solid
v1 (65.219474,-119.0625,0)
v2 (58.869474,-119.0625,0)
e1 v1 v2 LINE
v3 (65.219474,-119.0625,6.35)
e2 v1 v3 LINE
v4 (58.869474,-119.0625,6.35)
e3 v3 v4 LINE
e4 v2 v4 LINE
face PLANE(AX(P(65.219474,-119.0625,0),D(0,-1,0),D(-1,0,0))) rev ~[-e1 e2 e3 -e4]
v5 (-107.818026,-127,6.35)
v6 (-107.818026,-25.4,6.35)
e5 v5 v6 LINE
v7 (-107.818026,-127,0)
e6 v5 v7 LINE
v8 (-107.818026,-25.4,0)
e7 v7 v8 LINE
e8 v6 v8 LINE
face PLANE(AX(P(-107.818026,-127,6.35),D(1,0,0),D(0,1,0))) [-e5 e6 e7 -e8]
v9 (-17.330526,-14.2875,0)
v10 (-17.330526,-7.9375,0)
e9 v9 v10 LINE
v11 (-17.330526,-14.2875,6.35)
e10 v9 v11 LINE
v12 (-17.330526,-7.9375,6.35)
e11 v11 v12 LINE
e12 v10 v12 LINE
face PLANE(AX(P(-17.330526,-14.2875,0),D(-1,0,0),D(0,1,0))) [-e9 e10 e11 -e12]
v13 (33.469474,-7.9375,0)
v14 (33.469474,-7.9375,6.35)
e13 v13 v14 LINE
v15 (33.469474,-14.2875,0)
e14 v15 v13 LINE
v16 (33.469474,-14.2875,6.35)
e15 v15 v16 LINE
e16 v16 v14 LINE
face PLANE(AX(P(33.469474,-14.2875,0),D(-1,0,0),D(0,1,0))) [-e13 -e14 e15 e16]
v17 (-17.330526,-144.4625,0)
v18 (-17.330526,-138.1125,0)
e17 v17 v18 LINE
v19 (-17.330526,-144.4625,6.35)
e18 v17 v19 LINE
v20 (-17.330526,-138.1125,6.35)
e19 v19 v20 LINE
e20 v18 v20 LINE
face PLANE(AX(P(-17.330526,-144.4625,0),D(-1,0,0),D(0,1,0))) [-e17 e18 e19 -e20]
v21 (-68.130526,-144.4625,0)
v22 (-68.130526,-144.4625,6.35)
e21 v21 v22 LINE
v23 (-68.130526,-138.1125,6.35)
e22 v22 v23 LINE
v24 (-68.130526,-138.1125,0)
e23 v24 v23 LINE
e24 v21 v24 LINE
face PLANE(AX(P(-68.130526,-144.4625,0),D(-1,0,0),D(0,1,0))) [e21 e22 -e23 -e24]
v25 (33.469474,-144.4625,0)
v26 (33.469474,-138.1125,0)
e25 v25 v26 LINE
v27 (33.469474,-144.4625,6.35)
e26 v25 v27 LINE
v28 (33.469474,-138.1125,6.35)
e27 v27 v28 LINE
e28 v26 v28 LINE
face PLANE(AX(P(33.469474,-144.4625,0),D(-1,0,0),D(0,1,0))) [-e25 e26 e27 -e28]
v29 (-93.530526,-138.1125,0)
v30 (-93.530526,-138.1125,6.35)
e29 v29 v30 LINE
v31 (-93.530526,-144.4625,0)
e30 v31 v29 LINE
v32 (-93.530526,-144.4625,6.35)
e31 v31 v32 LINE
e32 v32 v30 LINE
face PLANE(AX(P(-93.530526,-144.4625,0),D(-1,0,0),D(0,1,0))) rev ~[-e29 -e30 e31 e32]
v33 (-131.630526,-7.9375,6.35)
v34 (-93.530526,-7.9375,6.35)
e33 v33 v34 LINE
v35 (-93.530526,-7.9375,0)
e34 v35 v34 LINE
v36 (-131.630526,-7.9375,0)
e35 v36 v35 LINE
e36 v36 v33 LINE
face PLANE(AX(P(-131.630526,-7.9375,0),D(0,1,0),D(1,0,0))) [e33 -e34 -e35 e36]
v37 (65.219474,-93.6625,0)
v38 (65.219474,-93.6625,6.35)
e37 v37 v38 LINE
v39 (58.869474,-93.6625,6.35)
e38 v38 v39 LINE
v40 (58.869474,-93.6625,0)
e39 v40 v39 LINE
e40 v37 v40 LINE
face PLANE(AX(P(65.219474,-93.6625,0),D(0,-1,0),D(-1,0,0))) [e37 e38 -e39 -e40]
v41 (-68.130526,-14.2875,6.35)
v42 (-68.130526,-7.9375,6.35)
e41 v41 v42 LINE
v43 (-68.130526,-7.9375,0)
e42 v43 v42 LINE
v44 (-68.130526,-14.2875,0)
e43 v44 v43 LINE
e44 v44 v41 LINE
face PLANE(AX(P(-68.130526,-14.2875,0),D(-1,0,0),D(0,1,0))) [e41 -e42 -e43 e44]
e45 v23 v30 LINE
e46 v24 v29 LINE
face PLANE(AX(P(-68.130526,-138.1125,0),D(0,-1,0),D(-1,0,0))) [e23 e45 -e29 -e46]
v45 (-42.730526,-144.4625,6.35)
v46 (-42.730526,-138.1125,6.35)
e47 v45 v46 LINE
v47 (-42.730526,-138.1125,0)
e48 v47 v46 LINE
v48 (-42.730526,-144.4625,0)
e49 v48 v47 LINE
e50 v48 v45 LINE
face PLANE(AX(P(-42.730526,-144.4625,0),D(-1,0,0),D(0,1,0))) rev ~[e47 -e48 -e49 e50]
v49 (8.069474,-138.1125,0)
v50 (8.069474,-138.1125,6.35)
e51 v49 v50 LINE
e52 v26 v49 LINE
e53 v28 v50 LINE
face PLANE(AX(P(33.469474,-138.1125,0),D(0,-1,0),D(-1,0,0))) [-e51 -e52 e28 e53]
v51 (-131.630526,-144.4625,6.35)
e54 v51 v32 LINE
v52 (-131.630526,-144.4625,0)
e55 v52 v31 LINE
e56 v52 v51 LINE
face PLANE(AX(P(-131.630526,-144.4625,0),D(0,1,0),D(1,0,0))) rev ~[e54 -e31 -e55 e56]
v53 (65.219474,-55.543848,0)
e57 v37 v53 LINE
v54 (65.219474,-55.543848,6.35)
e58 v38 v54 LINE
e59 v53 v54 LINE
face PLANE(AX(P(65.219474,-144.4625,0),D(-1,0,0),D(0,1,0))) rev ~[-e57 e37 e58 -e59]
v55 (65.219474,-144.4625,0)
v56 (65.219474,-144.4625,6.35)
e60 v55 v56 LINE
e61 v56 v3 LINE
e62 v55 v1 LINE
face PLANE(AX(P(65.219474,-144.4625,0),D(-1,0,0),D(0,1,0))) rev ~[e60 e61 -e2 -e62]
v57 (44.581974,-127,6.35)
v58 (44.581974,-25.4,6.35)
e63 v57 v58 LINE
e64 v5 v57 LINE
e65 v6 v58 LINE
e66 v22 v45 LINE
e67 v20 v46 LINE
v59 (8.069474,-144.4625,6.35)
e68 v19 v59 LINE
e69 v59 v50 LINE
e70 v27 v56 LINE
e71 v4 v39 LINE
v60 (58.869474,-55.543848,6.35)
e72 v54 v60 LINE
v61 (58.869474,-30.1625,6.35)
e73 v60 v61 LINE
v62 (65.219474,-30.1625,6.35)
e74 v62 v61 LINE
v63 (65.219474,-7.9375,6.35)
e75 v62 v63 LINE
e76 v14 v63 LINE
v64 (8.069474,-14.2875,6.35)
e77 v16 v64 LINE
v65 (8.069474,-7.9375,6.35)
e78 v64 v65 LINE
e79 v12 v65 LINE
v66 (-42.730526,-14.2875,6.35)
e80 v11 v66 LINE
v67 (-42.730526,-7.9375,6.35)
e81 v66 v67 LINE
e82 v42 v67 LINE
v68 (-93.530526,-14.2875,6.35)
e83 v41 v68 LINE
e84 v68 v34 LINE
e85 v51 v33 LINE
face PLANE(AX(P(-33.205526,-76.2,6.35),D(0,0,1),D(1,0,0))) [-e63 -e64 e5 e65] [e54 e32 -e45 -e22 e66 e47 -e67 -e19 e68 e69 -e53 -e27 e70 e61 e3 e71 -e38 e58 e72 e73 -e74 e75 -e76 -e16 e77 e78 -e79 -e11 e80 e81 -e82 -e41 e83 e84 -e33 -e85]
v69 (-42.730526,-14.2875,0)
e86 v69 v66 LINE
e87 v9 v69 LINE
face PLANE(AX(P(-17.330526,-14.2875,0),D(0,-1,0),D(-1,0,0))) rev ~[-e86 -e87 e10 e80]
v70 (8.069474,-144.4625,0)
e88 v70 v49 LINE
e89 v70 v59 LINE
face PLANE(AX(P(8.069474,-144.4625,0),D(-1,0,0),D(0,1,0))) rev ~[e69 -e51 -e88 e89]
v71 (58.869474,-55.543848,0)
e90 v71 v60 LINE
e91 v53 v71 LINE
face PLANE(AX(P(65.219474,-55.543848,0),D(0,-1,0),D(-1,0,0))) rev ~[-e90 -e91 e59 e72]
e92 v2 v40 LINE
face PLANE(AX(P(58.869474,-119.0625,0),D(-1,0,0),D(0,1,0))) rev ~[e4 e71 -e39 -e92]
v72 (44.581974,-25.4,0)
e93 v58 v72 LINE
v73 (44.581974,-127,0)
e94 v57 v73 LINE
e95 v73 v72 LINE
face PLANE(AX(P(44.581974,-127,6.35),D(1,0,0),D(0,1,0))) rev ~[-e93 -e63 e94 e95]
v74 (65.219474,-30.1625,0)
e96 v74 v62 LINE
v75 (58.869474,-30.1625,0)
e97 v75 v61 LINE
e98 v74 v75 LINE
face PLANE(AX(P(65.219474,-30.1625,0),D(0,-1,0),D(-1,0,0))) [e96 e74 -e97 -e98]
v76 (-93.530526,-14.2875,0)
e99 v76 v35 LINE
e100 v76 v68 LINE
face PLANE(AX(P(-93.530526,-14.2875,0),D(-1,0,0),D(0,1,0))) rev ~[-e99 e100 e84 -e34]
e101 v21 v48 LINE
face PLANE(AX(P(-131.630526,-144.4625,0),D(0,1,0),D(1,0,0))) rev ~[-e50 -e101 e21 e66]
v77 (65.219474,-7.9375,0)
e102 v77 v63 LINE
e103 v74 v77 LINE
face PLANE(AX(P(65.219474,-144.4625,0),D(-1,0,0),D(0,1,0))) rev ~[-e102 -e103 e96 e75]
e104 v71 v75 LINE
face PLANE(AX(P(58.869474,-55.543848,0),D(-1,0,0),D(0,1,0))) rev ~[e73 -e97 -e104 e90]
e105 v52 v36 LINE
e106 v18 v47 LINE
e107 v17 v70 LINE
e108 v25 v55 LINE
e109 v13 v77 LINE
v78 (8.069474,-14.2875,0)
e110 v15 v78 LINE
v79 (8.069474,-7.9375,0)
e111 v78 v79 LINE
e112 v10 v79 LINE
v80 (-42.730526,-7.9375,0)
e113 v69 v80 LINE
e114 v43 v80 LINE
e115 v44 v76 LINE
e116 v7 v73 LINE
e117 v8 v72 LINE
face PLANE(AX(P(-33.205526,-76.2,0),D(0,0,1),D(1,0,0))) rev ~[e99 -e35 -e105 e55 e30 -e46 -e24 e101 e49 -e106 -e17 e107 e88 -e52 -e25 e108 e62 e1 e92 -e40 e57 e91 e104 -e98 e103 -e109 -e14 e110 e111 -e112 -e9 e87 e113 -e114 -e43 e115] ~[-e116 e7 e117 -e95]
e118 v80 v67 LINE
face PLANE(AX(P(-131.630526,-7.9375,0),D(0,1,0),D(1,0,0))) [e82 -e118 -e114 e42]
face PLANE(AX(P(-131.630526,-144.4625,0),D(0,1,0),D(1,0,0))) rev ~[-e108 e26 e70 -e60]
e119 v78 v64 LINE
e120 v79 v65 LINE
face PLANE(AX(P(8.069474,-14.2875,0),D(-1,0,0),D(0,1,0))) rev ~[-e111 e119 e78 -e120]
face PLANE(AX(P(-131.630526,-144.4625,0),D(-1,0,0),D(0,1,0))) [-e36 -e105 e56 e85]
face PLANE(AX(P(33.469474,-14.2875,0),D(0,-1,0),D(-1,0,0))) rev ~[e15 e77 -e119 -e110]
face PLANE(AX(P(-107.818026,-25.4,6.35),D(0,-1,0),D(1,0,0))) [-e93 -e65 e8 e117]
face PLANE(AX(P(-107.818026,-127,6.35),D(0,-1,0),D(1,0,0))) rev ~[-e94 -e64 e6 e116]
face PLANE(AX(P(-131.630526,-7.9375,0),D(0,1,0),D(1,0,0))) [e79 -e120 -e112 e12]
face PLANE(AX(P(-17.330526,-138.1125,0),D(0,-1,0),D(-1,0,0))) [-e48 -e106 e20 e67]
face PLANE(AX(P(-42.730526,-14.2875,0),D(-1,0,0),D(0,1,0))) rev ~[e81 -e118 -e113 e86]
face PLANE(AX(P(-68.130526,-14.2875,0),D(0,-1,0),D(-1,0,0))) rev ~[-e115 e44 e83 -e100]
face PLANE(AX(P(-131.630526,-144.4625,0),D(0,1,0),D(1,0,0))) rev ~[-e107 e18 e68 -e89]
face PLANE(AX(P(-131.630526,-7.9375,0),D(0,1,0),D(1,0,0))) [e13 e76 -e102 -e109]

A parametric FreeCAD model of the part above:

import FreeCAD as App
import Part
import Sketcher

V = App.Vector
Q = App.Units.Quantity


def add_polygon(sketch, points):
    """Adds a closed chain of lines whose ends are joined by coincident constraints."""
    first, n = sketch.GeometryCount, len(points)
    for a, b in zip(points, points[1:] + points[:1]):
        sketch.addGeometry(Part.LineSegment(App.Vector(*a, 0), App.Vector(*b, 0)), False)
    for i in range(n):
        sketch.addConstraint(Sketcher.Constraint("Coincident", first + i, 2, first + (i + 1) % n, 1))

doc = App.newDocument("Part")
body = doc.addObject("PartDesign::Body", "Body")

# Sketch on XY plane
sketch1 = body.newObject("Sketcher::SketchObject", "Sketch")
sketch1.AttachmentSupport = (doc.getObject("XY_Plane"), [""])
sketch1.MapMode = "FlatFace"
add_polygon(sketch1, [(-132, -8), (-132, -144), (65, -144), (65, -8)])  # lines 0-3
sketch1.addConstraint([
    Sketcher.Constraint("Vertical", 0),
    Sketcher.Constraint("Horizontal", 1),
    Sketcher.Constraint("Vertical", 2),
    Sketcher.Constraint("Horizontal", 3),
    Sketcher.Constraint("DistanceX", 1, 1, 1, 2, Q("7.75 in")),
    Sketcher.Constraint("DistanceY", 0, 2, 0, 1, Q("5.375 in")),
    Sketcher.Constraint("DistanceY", 0, 2, -1, 1, Q("5.6875 in")),
    Sketcher.Constraint("DistanceX", 0, 2, -1, 1, 131.630526),
])
pad1 = body.newObject("PartDesign::Pad", "Pad")
pad1.Profile = sketch1
pad1.Length = Q("0.25 in")

# Sketch on XY plane
sketch2 = body.newObject("Sketcher::SketchObject", "Sketch001")
sketch2.AttachmentSupport = (doc.getObject("XY_Plane"), [""])
sketch2.MapMode = "FlatFace"
sketch2.AttachmentOffset = App.Placement(V(0, 0, 0.25 * 25.4), App.Rotation())
add_polygon(sketch2, [(-108, -25), (-108, -127), (45, -127), (45, -25)])  # lines 0-3
sketch2.addConstraint([
    Sketcher.Constraint("Vertical", 0),
    Sketcher.Constraint("Horizontal", 1),
    Sketcher.Constraint("Vertical", 2),
    Sketcher.Constraint("Horizontal", 3),
    Sketcher.Constraint("DistanceX", 1, 1, 1, 2, Q("6 in")),
    Sketcher.Constraint("DistanceY", 0, 2, 0, 1, Q("4 in")),
    Sketcher.Constraint("DistanceY", 0, 2, -1, 1, Q("5 in")),
    Sketcher.Constraint("DistanceX", 0, 2, -1, 1, 107.818026),
])
pocket1 = body.newObject("PartDesign::Pocket", "Pocket")
pocket1.Profile = sketch2
pocket1.Type = "ThroughAll"

# Sketch on XY plane
sketch3 = body.newObject("Sketcher::SketchObject", "Sketch002")
sketch3.AttachmentSupport = (doc.getObject("XY_Plane"), [""])
sketch3.MapMode = "FlatFace"
add_polygon(sketch3, [(65, -94), (65, -119), (59, -119), (59, -94)])  # lines 0-3
add_polygon(sketch3, [(65, -30), (65, -56), (59, -56), (59, -30)])  # lines 4-7
add_polygon(sketch3, [(33, -8), (33, -14), (8, -14), (8, -8)])  # lines 8-11
add_polygon(sketch3, [(-17, -8), (-17, -14), (-43, -14), (-43, -8)])  # lines 12-15
add_polygon(sketch3, [(-68, -8), (-68, -14), (-94, -14), (-94, -8)])  # lines 16-19
add_polygon(sketch3, [(33, -138), (33, -144), (8, -144), (8, -138)])  # lines 20-23
add_polygon(sketch3, [(-17, -138), (-17, -144), (-43, -144), (-43, -138)])  # lines 24-27
add_polygon(sketch3, [(-68, -138), (-68, -144), (-94, -144), (-94, -138)])  # lines 28-31
sketch3.addConstraint([
    Sketcher.Constraint("Vertical", 0),
    Sketcher.Constraint("Horizontal", 1),
    Sketcher.Constraint("Vertical", 2),
    Sketcher.Constraint("Horizontal", 3),
    Sketcher.Constraint("Vertical", 4),
    Sketcher.Constraint("Horizontal", 5),
    Sketcher.Constraint("Vertical", 6),
    Sketcher.Constraint("Horizontal", 7),
    Sketcher.Constraint("Vertical", 8),
    Sketcher.Constraint("Horizontal", 9),
    Sketcher.Constraint("Vertical", 10),
    Sketcher.Constraint("Horizontal", 11),
    Sketcher.Constraint("Vertical", 12),
    Sketcher.Constraint("Horizontal", 13),
    Sketcher.Constraint("Vertical", 14),
    Sketcher.Constraint("Horizontal", 15),
    Sketcher.Constraint("Vertical", 16),
    Sketcher.Constraint("Horizontal", 17),
    Sketcher.Constraint("Vertical", 18),
    Sketcher.Constraint("Horizontal", 19),
    Sketcher.Constraint("Vertical", 20),
    Sketcher.Constraint("Horizontal", 21),
    Sketcher.Constraint("Vertical", 22),
    Sketcher.Constraint("Horizontal", 23),
    Sketcher.Constraint("Vertical", 24),
    Sketcher.Constraint("Horizontal", 25),
    Sketcher.Constraint("Vertical", 26),
    Sketcher.Constraint("Horizontal", 27),
    Sketcher.Constraint("Vertical", 28),
    Sketcher.Constraint("Horizontal", 29),
    Sketcher.Constraint("Vertical", 30),
    Sketcher.Constraint("Horizontal", 31),
    Sketcher.Constraint("Horizontal", 9, 2, 12, 2),
    Sketcher.Constraint("Horizontal", 11, 2, 14, 2),
    Sketcher.Constraint("Horizontal", 13, 2, 16, 2),
    Sketcher.Constraint("Horizontal", 15, 2, 18, 2),
    Sketcher.Constraint("Horizontal", 21, 2, 24, 2),
    Sketcher.Constraint("Horizontal", 23, 2, 26, 2),
    Sketcher.Constraint("Horizontal", 25, 2, 28, 2),
    Sketcher.Constraint("Horizontal", 27, 2, 30, 2),
    Sketcher.Constraint("Vertical", 3, 2, 4, 2),
    Sketcher.Constraint("Vertical", 2, 2, 5, 2),
    Sketcher.Constraint("Vertical", 11, 2, 20, 2),
    Sketcher.Constraint("Vertical", 10, 2, 21, 2),
    Sketcher.Constraint("Vertical", 15, 2, 24, 2),
    Sketcher.Constraint("Vertical", 14, 2, 25, 2),
    Sketcher.Constraint("Vertical", 19, 2, 28, 2),
    Sketcher.Constraint("Vertical", 18, 2, 29, 2),
    Sketcher.Constraint("Equal", 11, 13),
    Sketcher.Constraint("Equal", 15, 17),
    Sketcher.Constraint("Equal", 31, 0),
    Sketcher.Constraint("Equal", 7, 8),
    Sketcher.Constraint("Equal", 18, 20),
    Sketcher.Constraint("DistanceX", 9, 2, 9, 1, Q("1 in")),
    Sketcher.Constraint("DistanceX", 8, 2, 6, 2, Q("1 in")),
    Sketcher.Constraint("DistanceX", 12, 2, 9, 2, Q("1 in")),
    Sketcher.Constraint("DistanceX", 16, 2, 13, 2, Q("1 in")),
    Sketcher.Constraint("DistanceY", 20, 2, 1, 2, Q("1 in")),
    Sketcher.Constraint("DistanceX", 1, 2, 1, 1, Q("0.25 in")),
    Sketcher.Constraint("DistanceY", 2, 2, 6, 2, Q("2.5 in")),
    Sketcher.Constraint("DistanceY", 0, 2, -1, 1, Q("4.6875 in")),
    Sketcher.Constraint("DistanceY", 8, 2, -1, 1, Q("0.5625 in")),
    Sketcher.Constraint("DistanceY", 4, 2, 4, 1, 25.381348),
    Sketcher.Constraint("DistanceX", -1, 1, 0, 2, 65.219474),
])
pocket2 = body.newObject("PartDesign::Pocket", "Pocket001")
pocket2.Profile = sketch3
pocket2.Length = Q("0.25 in")
pocket2.Reversed = True

doc.recompute()
